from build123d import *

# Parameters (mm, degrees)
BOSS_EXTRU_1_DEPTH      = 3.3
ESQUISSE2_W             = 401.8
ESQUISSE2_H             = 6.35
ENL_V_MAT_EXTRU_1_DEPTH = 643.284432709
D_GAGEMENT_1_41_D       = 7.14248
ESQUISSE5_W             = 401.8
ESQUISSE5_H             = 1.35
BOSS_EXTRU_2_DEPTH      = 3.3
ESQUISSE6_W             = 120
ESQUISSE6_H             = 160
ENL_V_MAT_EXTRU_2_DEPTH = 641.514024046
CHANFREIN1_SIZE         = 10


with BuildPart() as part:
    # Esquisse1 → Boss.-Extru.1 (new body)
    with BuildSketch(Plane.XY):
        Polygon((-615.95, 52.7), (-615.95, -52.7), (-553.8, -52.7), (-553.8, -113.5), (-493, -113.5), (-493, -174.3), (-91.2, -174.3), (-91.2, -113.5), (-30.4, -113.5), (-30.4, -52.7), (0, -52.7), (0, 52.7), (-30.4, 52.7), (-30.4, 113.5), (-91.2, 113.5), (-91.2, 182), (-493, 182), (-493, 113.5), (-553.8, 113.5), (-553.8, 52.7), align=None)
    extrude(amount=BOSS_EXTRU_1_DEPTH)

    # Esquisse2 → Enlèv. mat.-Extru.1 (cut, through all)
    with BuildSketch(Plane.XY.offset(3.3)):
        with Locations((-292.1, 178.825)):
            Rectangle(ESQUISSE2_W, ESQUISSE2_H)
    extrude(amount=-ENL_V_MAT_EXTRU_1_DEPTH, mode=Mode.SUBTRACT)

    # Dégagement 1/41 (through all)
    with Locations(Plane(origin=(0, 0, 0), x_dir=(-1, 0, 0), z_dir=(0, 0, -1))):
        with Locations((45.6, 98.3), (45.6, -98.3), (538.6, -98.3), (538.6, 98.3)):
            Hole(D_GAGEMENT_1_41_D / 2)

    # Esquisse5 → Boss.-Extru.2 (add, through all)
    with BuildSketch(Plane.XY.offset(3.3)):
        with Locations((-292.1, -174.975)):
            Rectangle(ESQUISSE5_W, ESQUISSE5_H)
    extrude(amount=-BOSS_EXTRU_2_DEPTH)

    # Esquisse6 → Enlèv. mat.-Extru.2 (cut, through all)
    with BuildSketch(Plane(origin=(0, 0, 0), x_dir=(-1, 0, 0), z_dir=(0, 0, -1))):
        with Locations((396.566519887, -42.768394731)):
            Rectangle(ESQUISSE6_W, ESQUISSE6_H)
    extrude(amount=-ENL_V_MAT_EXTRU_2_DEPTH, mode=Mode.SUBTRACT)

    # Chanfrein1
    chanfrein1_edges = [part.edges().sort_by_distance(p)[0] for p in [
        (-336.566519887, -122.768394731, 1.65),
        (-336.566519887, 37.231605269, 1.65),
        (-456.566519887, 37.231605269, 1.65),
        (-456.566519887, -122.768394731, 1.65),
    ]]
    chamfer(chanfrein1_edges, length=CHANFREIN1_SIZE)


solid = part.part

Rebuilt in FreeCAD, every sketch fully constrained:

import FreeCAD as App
import Part
import Sketcher
from FreeCAD import Vector


def edges_at(feature, points):
    """Names of the edges that pass closest to the given points."""
    edges = feature.Shape.Edges
    near = lambda p: min(range(len(edges)), key=lambda i: edges[i].distToShape(Part.Vertex(*p))[0])
    return sorted({f"Edge{near(p) + 1}" for p in points})

doc = App.newDocument("Part")
body = doc.addObject("PartDesign::Body", "Body")

sketch1 = body.newObject("Sketcher::SketchObject", "Sketch")
sketch1.AttachmentSupport = (doc.getObject("XY_Plane"), [""])
sketch1.MapMode = "FlatFace"
sketch1.addGeometry([
    Part.LineSegment(Vector(-616, 53, 0), Vector(-616, -53, 0)),
    Part.LineSegment(Vector(-616, -53, 0), Vector(-554, -53, 0)),
    Part.LineSegment(Vector(-554, -53, 0), Vector(-554, -114, 0)),
    Part.LineSegment(Vector(-554, -114, 0), Vector(-493, -114, 0)),
    Part.LineSegment(Vector(-493, -114, 0), Vector(-493, -174, 0)),
    Part.LineSegment(Vector(-493, -174, 0), Vector(-91, -174, 0)),
    Part.LineSegment(Vector(-91, -174, 0), Vector(-91, -114, 0)),
    Part.LineSegment(Vector(-91, -114, 0), Vector(-30, -114, 0)),
    Part.LineSegment(Vector(-30, -114, 0), Vector(-30, -53, 0)),
    Part.LineSegment(Vector(-30, -53, 0), Vector(0, -53, 0)),
    Part.LineSegment(Vector(0, -53, 0), Vector(0, 53, 0)),
    Part.LineSegment(Vector(0, 53, 0), Vector(-30, 53, 0)),
    Part.LineSegment(Vector(-30, 53, 0), Vector(-30, 114, 0)),
    Part.LineSegment(Vector(-30, 114, 0), Vector(-91, 114, 0)),
    Part.LineSegment(Vector(-91, 114, 0), Vector(-91, 182, 0)),
    Part.LineSegment(Vector(-91, 182, 0), Vector(-493, 182, 0)),
    Part.LineSegment(Vector(-493, 182, 0), Vector(-493, 114, 0)),
    Part.LineSegment(Vector(-493, 114, 0), Vector(-554, 114, 0)),
    Part.LineSegment(Vector(-554, 114, 0), Vector(-554, 53, 0)),
    Part.LineSegment(Vector(-554, 53, 0), Vector(-616, 53, 0)),
], False)
sketch1.addConstraint([
    Sketcher.Constraint("Coincident", 0, 2, 1, 1),
    Sketcher.Constraint("Coincident", 1, 2, 2, 1),
    Sketcher.Constraint("Coincident", 2, 2, 3, 1),
    Sketcher.Constraint("Coincident", 3, 2, 4, 1),
    Sketcher.Constraint("Coincident", 4, 2, 5, 1),
    Sketcher.Constraint("Coincident", 5, 2, 6, 1),
    Sketcher.Constraint("Coincident", 6, 2, 7, 1),
    Sketcher.Constraint("Coincident", 7, 2, 8, 1),
    Sketcher.Constraint("Coincident", 8, 2, 9, 1),
    Sketcher.Constraint("Coincident", 9, 2, 10, 1),
    Sketcher.Constraint("Coincident", 10, 2, 11, 1),
    Sketcher.Constraint("Coincident", 11, 2, 12, 1),
    Sketcher.Constraint("Coincident", 12, 2, 13, 1),
    Sketcher.Constraint("Coincident", 13, 2, 14, 1),
    Sketcher.Constraint("Coincident", 14, 2, 15, 1),
    Sketcher.Constraint("Coincident", 15, 2, 16, 1),
    Sketcher.Constraint("Coincident", 16, 2, 17, 1),
    Sketcher.Constraint("Coincident", 17, 2, 18, 1),
    Sketcher.Constraint("Coincident", 18, 2, 19, 1),
    Sketcher.Constraint("Coincident", 19, 2, 0, 1),
    Sketcher.Constraint("Vertical", 0),
    Sketcher.Constraint("Horizontal", 1),
    Sketcher.Constraint("Vertical", 2),
    Sketcher.Constraint("Horizontal", 3),
    Sketcher.Constraint("Vertical", 4),
    Sketcher.Constraint("Horizontal", 5),
    Sketcher.Constraint("Vertical", 6),
    Sketcher.Constraint("Horizontal", 7),
    Sketcher.Constraint("Vertical", 8),
    Sketcher.Constraint("Horizontal", 9),
    Sketcher.Constraint("Vertical", 10),
    Sketcher.Constraint("Horizontal", 11),
    Sketcher.Constraint("Vertical", 12),
    Sketcher.Constraint("Horizontal", 13),
    Sketcher.Constraint("Vertical", 14),
    Sketcher.Constraint("Horizontal", 15),
    Sketcher.Constraint("Vertical", 16),
    Sketcher.Constraint("Horizontal", 17),
    Sketcher.Constraint("Vertical", 18),
    Sketcher.Constraint("Horizontal", 19),
    Sketcher.Constraint("Symmetric", 9, 2, 10, 2, -1, 1),
    Sketcher.Constraint("Symmetric", 7, 2, 12, 2, -1),
    Sketcher.Constraint("Symmetric", 3, 2, 16, 2, -1),
    Sketcher.Constraint("Symmetric", 1, 2, 18, 2, -1),
    Sketcher.Constraint("Horizontal", 3, 2, 6, 2),
    Sketcher.Constraint("Horizontal", 1, 2, 8, 2),
    Sketcher.Constraint("Vertical", 6, 2, 13, 2),
    Sketcher.Constraint("Equal", 3, 7),
    Sketcher.Constraint("Equal", 17, 2),
    Sketcher.Constraint("Equal", 2, 4),
    Sketcher.Constraint("DistanceX", 3, 1, 3, 2, 60.8),
    Sketcher.Constraint("DistanceX", 5, 1, 5, 2, 401.8),
    Sketcher.Constraint("DistanceX", 9, 1, 9, 2, 30.4),
    Sketcher.Constraint("DistanceY", 0, 2, 0, 1, 105.4),
    Sketcher.Constraint("DistanceY", 14, 1, 14, 2, 68.5),
    Sketcher.Constraint("DistanceX", 1, 1, 1, 2, 62.15),
])
pad1 = body.newObject("PartDesign::Pad", "Pad")
pad1.Profile = sketch1
pad1.Length = 3.3

sketch2 = body.newObject("Sketcher::SketchObject", "Sketch001")
sketch2.AttachmentSupport = (doc.getObject("XY_Plane"), [""])
sketch2.MapMode = "FlatFace"
sketch2.AttachmentOffset = App.Placement(Vector(0, 0, 3.3), App.Rotation())
sketch2.addGeometry([
    Part.LineSegment(Vector(-493, 182, 0), Vector(-493, 176, 0)),
    Part.LineSegment(Vector(-493, 176, 0), Vector(-91, 176, 0)),
    Part.LineSegment(Vector(-91, 176, 0), Vector(-91, 182, 0)),
    Part.LineSegment(Vector(-91, 182, 0), Vector(-493, 182, 0)),
], False)
sketch2.addConstraint([
    Sketcher.Constraint("Coincident", 0, 2, 1, 1),
    Sketcher.Constraint("Coincident", 1, 2, 2, 1),
    Sketcher.Constraint("Coincident", 2, 2, 3, 1),
    Sketcher.Constraint("Coincident", 3, 2, 0, 1),
    Sketcher.Constraint("Vertical", 0),
    Sketcher.Constraint("Horizontal", 1),
    Sketcher.Constraint("Vertical", 2),
    Sketcher.Constraint("Horizontal", 3),
    Sketcher.Constraint("DistanceX", 1, 1, 1, 2, 401.8),
    Sketcher.Constraint("DistanceX", 0, 2, -1, 1, 493.0),
    Sketcher.Constraint("DistanceY", -1, 1, 2, 2, 182.0),
    Sketcher.Constraint("DistanceY", 0, 2, 0, 1, 6.35),
])
pocket1 = body.newObject("PartDesign::Pocket", "Pocket")
pocket1.Profile = sketch2
pocket1.Type = "ThroughAll"

sketch3 = body.newObject("Sketcher::SketchObject", "Sketch002")
sketch3.AttachmentSupport = (doc.getObject("XY_Plane"), [""])
sketch3.MapMode = "FlatFace"
sketch3.addGeometry([
    Part.Circle(Vector(-45.6, 98.3, 0), Vector(0, 0, 1), 3.6),
    Part.Circle(Vector(-45.6, -98.3, 0), Vector(0, 0, 1), 3.6),
    Part.Circle(Vector(-538.6, -98.3, 0), Vector(0, 0, 1), 3.6),
    Part.Circle(Vector(-538.6, 98.3, 0), Vector(0, 0, 1), 3.6),
], False)
sketch3.addConstraint([
    Sketcher.Constraint("Equal", 0, 1),
    Sketcher.Constraint("Equal", 1, 2),
    Sketcher.Constraint("Equal", 2, 3),
    Sketcher.Constraint("Symmetric", 0, 3, 1, 3, -1),
    Sketcher.Constraint("Symmetric", 2, 3, 3, 3, -1),
    Sketcher.Constraint("Horizontal", 1, 3, 2, 3),
    Sketcher.Constraint("DistanceX", 2, 3, 1, 3, 493.0),
    Sketcher.Constraint("DistanceX", 0, 3, -1, 1, 45.6),
    Sketcher.Constraint("DistanceY", -1, 1, 0, 3, 98.3),
    Sketcher.Constraint("Diameter", 0, 7.14248),
])
doc.recompute()
hole = body.newObject("PartDesign::Hole", "Hole")
hole.Profile = sketch3
hole.ThreadType = "None"
hole.Diameter = 7.14248
hole.DepthType = "ThroughAll"
hole.Reversed = True

sketch4 = body.newObject("Sketcher::SketchObject", "Sketch003")
sketch4.AttachmentSupport = (doc.getObject("XY_Plane"), [""])
sketch4.MapMode = "FlatFace"
sketch4.AttachmentOffset = App.Placement(Vector(0, 0, 3.3), App.Rotation())
sketch4.addGeometry([
    Part.LineSegment(Vector(-493, -174.3, 0), Vector(-493, -175.7, 0)),
    Part.LineSegment(Vector(-493, -175.7, 0), Vector(-91.2, -175.7, 0)),
    Part.LineSegment(Vector(-91.2, -175.7, 0), Vector(-91.2, -174.3, 0)),
    Part.LineSegment(Vector(-91.2, -174.3, 0), Vector(-493, -174.3, 0)),
], False)
sketch4.addConstraint([
    Sketcher.Constraint("Coincident", 0, 2, 1, 1),
    Sketcher.Constraint("Coincident", 1, 2, 2, 1),
    Sketcher.Constraint("Coincident", 2, 2, 3, 1),
    Sketcher.Constraint("Coincident", 3, 2, 0, 1),
    Sketcher.Constraint("Vertical", 0),
    Sketcher.Constraint("Horizontal", 1),
    Sketcher.Constraint("Vertical", 2),
    Sketcher.Constraint("Horizontal", 3),
    Sketcher.Constraint("DistanceX", 1, 1, 1, 2, 401.8),
    Sketcher.Constraint("DistanceX", 0, 2, -1, 1, 493.0),
    Sketcher.Constraint("DistanceY", 0, 2, 0, 1, 1.35),
    Sketcher.Constraint("DistanceY", 2, 2, -1, 1, 174.3),
])
pad2 = body.newObject("PartDesign::Pad", "Pad001")
pad2.Profile = sketch4
pad2.Length = 3.3
pad2.Reversed = True

sketch5 = body.newObject("Sketcher::SketchObject", "Sketch004")
sketch5.AttachmentSupport = (doc.getObject("XY_Plane"), [""])
sketch5.MapMode = "FlatFace"
sketch5.addGeometry([
    Part.LineSegment(Vector(-337, 37, 0), Vector(-337, -123, 0)),
    Part.LineSegment(Vector(-337, -123, 0), Vector(-457, -123, 0)),
    Part.LineSegment(Vector(-457, -123, 0), Vector(-457, 37, 0)),
    Part.LineSegment(Vector(-457, 37, 0), Vector(-337, 37, 0)),
], False)
sketch5.addConstraint([
    Sketcher.Constraint("Coincident", 0, 2, 1, 1),
    Sketcher.Constraint("Coincident", 1, 2, 2, 1),
    Sketcher.Constraint("Coincident", 2, 2, 3, 1),
    Sketcher.Constraint("Coincident", 3, 2, 0, 1),
    Sketcher.Constraint("Vertical", 0),
    Sketcher.Constraint("Horizontal", 1),
    Sketcher.Constraint("Vertical", 2),
    Sketcher.Constraint("Horizontal", 3),
    Sketcher.Constraint("DistanceX", 1, 2, 1, 1, 120.0),
    Sketcher.Constraint("DistanceY", 0, 2, 0, 1, 160.0),
    Sketcher.Constraint("DistanceX", 0, 2, -1, 1, 336.56652),
    Sketcher.Constraint("DistanceY", 0, 2, -1, 1, 122.768395),
])
pocket2 = body.newObject("PartDesign::Pocket", "Pocket001")
pocket2.Profile = sketch5
pocket2.Type = "ThroughAll"
pocket2.Reversed = True
doc.recompute()

chamfer = body.newObject("PartDesign::Chamfer", "Chamfer")
chamfer.Base = (pocket2, edges_at(pocket2, [
    (-336.567, -122.768, 1.65),
    (-336.567, 37.232, 1.65),
    (-456.567, 37.232, 1.65),
    (-456.567, -122.768, 1.65),
]))
chamfer.Size = 10

doc.recompute()
